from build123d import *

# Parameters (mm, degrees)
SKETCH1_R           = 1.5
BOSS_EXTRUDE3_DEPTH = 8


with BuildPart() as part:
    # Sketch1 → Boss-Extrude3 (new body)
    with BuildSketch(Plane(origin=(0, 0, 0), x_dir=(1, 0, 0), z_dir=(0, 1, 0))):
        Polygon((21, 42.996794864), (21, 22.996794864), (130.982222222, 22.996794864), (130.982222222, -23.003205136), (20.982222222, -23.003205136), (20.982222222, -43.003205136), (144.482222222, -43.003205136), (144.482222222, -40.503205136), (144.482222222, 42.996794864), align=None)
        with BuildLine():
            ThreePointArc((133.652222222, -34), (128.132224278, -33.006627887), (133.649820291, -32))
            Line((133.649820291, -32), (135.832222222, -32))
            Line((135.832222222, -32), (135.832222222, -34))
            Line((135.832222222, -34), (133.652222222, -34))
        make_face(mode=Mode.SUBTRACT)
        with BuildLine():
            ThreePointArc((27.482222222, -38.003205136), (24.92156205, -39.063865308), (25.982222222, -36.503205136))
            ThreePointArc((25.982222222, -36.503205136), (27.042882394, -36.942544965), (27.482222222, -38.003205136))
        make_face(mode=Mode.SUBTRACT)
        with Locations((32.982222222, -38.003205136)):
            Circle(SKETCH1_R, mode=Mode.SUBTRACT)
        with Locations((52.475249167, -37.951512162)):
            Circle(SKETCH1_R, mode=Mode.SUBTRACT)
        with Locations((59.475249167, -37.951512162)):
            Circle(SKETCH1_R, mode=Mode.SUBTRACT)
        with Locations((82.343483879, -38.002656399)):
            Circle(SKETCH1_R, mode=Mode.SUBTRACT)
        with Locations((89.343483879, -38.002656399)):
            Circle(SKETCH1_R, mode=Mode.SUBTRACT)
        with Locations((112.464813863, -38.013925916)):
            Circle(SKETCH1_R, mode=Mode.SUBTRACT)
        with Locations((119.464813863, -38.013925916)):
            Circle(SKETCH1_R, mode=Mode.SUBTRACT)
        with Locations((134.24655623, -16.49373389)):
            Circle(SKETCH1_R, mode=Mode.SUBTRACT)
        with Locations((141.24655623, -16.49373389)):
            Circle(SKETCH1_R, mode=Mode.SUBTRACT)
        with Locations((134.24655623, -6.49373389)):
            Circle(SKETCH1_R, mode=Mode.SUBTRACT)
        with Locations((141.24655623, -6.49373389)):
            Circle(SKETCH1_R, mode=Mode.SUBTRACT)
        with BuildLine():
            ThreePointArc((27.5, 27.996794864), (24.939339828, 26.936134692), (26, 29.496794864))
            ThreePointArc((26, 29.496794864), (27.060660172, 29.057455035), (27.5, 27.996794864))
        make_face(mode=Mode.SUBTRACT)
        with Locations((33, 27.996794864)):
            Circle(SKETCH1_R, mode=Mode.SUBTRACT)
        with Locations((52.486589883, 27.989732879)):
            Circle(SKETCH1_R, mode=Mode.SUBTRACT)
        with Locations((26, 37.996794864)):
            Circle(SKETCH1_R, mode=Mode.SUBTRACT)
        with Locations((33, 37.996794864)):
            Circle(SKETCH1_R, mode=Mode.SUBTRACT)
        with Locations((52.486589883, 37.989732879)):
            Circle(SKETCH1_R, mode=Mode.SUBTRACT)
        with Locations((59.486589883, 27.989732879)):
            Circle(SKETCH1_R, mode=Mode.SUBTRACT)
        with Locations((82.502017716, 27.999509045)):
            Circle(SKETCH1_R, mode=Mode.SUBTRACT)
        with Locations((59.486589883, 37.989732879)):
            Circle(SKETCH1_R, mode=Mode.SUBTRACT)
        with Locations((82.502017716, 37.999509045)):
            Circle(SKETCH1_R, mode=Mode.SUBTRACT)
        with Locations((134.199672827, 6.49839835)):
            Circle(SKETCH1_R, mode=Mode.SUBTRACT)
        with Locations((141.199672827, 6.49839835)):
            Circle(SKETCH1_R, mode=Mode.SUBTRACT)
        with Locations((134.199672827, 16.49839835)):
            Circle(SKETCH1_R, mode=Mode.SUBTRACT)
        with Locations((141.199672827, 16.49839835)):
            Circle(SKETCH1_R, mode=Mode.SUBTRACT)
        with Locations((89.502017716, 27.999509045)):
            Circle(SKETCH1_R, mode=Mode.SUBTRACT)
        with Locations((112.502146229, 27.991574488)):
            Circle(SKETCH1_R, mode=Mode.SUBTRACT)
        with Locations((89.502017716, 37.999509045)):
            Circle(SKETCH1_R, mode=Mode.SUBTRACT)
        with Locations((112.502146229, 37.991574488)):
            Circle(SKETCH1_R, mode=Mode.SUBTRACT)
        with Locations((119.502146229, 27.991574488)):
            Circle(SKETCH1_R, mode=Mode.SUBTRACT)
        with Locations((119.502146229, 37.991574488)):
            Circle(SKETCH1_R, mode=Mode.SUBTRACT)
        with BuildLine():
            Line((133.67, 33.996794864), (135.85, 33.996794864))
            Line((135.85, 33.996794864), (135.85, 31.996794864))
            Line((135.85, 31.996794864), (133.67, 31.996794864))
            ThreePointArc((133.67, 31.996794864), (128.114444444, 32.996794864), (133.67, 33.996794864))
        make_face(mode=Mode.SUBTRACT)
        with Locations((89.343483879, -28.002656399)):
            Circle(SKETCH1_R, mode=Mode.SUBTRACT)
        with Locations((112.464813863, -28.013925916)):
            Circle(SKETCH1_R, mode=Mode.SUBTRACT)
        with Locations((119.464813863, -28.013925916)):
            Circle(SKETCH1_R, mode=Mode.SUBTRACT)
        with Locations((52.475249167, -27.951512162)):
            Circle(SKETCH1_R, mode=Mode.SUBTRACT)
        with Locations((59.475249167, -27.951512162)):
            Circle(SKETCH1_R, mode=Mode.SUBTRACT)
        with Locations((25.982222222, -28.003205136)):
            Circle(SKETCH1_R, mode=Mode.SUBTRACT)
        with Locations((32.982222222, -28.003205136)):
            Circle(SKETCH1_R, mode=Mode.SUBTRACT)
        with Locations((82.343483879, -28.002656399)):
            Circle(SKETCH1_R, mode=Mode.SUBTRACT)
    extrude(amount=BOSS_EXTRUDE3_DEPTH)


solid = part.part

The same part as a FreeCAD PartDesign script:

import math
import FreeCAD as App
import Part
import Sketcher

V = App.Vector
Q = App.Units.Quantity


def add_polygon(sketch, points):
    """Adds a closed chain of lines whose ends are joined by coincident constraints."""
    first, n = sketch.GeometryCount, len(points)
    for a, b in zip(points, points[1:] + points[:1]):
        sketch.addGeometry(Part.LineSegment(App.Vector(*a, 0), App.Vector(*b, 0)), False)
    for i in range(n):
        sketch.addConstraint(Sketcher.Constraint("Coincident", first + i, 2, first + (i + 1) % n, 1))

doc = App.newDocument("Part")
body = doc.addObject("PartDesign::Body", "Body")

sketch1 = doc.addObject("Sketcher::SketchObject", "Sketch")
body.addObject(sketch1)
sketch1.AttachmentSupport = (doc.XZ_Plane, [""])
sketch1.MapMode = "FlatFace"
add_polygon(sketch1, [(21, -42.996795), (21, -22.996795), (130.982222, -22.996795), (130.982222, 23.003205), (20.982222, 23.003205), (20.982222, 43.003205), (144.482222, 43.003205), (144.482222, -42.996795)])
sketch1.addGeometry(Part.ArcOfCircle(Part.Circle(V(25.982222, 38.003205, 0), V(0, 0, 1), 1.5), math.radians(-90), math.radians(0)), False)
sketch1.addGeometry(Part.ArcOfCircle(Part.Circle(V(25.982222, 38.003205, 0), V(0, 0, 1), 1.5), math.radians(0), math.radians(270)), False)
sketch1.addGeometry(Part.Circle(V(32.982222, 38.003205, 0), V(0, 0, 1), 1.5), False)
sketch1.addGeometry(Part.Circle(V(52.475249, 37.951512, 0), V(0, 0, 1), 1.5), False)
sketch1.addGeometry(Part.Circle(V(25.982222, 28.003205, 0), V(0, 0, 1), 1.5), False)
sketch1.addGeometry(Part.Circle(V(32.982222, 28.003205, 0), V(0, 0, 1), 1.5), False)
sketch1.addGeometry(Part.Circle(V(52.475249, 27.951512, 0), V(0, 0, 1), 1.5), False)
sketch1.addGeometry(Part.Circle(V(59.475249, 37.951512, 0), V(0, 0, 1), 1.5), False)
sketch1.addGeometry(Part.Circle(V(82.343484, 38.002656, 0), V(0, 0, 1), 1.5), False)
sketch1.addGeometry(Part.Circle(V(59.475249, 27.951512, 0), V(0, 0, 1), 1.5), False)
sketch1.addGeometry(Part.Circle(V(82.343484, 28.002656, 0), V(0, 0, 1), 1.5), False)
sketch1.addGeometry(Part.Circle(V(89.343484, 38.002656, 0), V(0, 0, 1), 1.5), False)
sketch1.addGeometry(Part.Circle(V(112.464814, 38.013926, 0), V(0, 0, 1), 1.5), False)
sketch1.addGeometry(Part.Circle(V(89.343484, 28.002656, 0), V(0, 0, 1), 1.5), False)
sketch1.addGeometry(Part.Circle(V(112.464814, 28.013926, 0), V(0, 0, 1), 1.5), False)
sketch1.addGeometry(Part.Circle(V(119.464814, 38.013926, 0), V(0, 0, 1), 1.5), False)
sketch1.addGeometry(Part.LineSegment(V(135.832222, 34, 0), V(133.652222, 34, 0)), False)
sketch1.addGeometry(Part.ArcOfCircle(Part.Circle(V(130.982222, 33.003205, 0), V(0, 0, 1), 2.85), math.radians(20.472183), math.radians(339.390197)), False)
sketch1.addGeometry(Part.LineSegment(V(133.64982, 32, 0), V(135.832222, 32, 0)), False)
sketch1.addGeometry(Part.LineSegment(V(135.832222, 32, 0), V(135.832222, 34, 0)), False)
sketch1.addGeometry(Part.Circle(V(119.464814, 28.013926, 0), V(0, 0, 1), 1.5), False)
sketch1.addGeometry(Part.Circle(V(134.246556, 16.493734, 0), V(0, 0, 1), 1.5), False)
sketch1.addGeometry(Part.Circle(V(141.246556, 16.493734, 0), V(0, 0, 1), 1.5), False)
sketch1.addGeometry(Part.Circle(V(134.246556, 6.493734, 0), V(0, 0, 1), 1.5), False)
sketch1.addGeometry(Part.Circle(V(141.246556, 6.493734, 0), V(0, 0, 1), 1.5), False)
sketch1.addGeometry(Part.ArcOfCircle(Part.Circle(V(26, -27.996795, 0), V(0, 0, 1), 1.5), math.radians(-90), math.radians(0)), False)
sketch1.addGeometry(Part.ArcOfCircle(Part.Circle(V(26, -27.996795, 0), V(0, 0, 1), 1.5), math.radians(0), math.radians(270)), False)
sketch1.addGeometry(Part.Circle(V(33, -27.996795, 0), V(0, 0, 1), 1.5), False)
sketch1.addGeometry(Part.Circle(V(52.48659, -27.989733, 0), V(0, 0, 1), 1.5), False)
sketch1.addGeometry(Part.Circle(V(26, -37.996795, 0), V(0, 0, 1), 1.5), False)
sketch1.addGeometry(Part.Circle(V(33, -37.996795, 0), V(0, 0, 1), 1.5), False)
sketch1.addGeometry(Part.Circle(V(52.48659, -37.989733, 0), V(0, 0, 1), 1.5), False)
sketch1.addGeometry(Part.Circle(V(59.48659, -27.989733, 0), V(0, 0, 1), 1.5), False)
sketch1.addGeometry(Part.Circle(V(82.502018, -27.999509, 0), V(0, 0, 1), 1.5), False)
sketch1.addGeometry(Part.Circle(V(59.48659, -37.989733, 0), V(0, 0, 1), 1.5), False)
sketch1.addGeometry(Part.Circle(V(82.502018, -37.999509, 0), V(0, 0, 1), 1.5), False)
sketch1.addGeometry(Part.Circle(V(134.199673, -6.498398, 0), V(0, 0, 1), 1.5), False)
sketch1.addGeometry(Part.Circle(V(141.199673, -6.498398, 0), V(0, 0, 1), 1.5), False)
sketch1.addGeometry(Part.Circle(V(134.199673, -16.498398, 0), V(0, 0, 1), 1.5), False)
sketch1.addGeometry(Part.Circle(V(141.199673, -16.498398, 0), V(0, 0, 1), 1.5), False)
sketch1.addGeometry(Part.Circle(V(89.502018, -27.999509, 0), V(0, 0, 1), 1.5), False)
sketch1.addGeometry(Part.Circle(V(112.502146, -27.991574, 0), V(0, 0, 1), 1.5), False)
sketch1.addGeometry(Part.Circle(V(89.502018, -37.999509, 0), V(0, 0, 1), 1.5), False)
sketch1.addGeometry(Part.Circle(V(112.502146, -37.991574, 0), V(0, 0, 1), 1.5), False)
sketch1.addGeometry(Part.Circle(V(119.502146, -27.991574, 0), V(0, 0, 1), 1.5), False)
sketch1.addGeometry(Part.Circle(V(119.502146, -37.991574, 0), V(0, 0, 1), 1.5), False)
sketch1.addGeometry(Part.ArcOfCircle(Part.Circle(V(130.982222, -32.996795, 0), V(0, 0, 1), 2.867778), math.radians(20.407947), math.radians(339.592053)), False)
sketch1.addGeometry(Part.LineSegment(V(133.67, -33.996795, 0), V(135.85, -33.996795, 0)), False)
sketch1.addGeometry(Part.LineSegment(V(135.85, -33.996795, 0), V(135.85, -31.996795, 0)), False)
sketch1.addGeometry(Part.LineSegment(V(135.85, -31.996795, 0), V(133.67, -31.996795, 0)), False)
sketch1.addConstraint([
    Sketcher.Constraint("Tangent", 8, 1, 9, 2),
    Sketcher.Constraint("Coincident", 9, 1, 8, 2),
    Sketcher.Constraint("Coincident", 24, 2, 25, 1),
    Sketcher.Constraint("Coincident", 25, 2, 26, 1),
    Sketcher.Constraint("Coincident", 26, 2, 27, 1),
    Sketcher.Constraint("Coincident", 27, 2, 24, 1),
    Sketcher.Constraint("Tangent", 33, 1, 34, 2),
    Sketcher.Constraint("Coincident", 34, 1, 33, 2),
    Sketcher.Constraint("Coincident", 54, 2, 55, 1),
    Sketcher.Constraint("Coincident", 55, 2, 56, 1),
    Sketcher.Constraint("Coincident", 56, 2, 57, 1),
    Sketcher.Constraint("Coincident", 57, 2, 54, 1),
    Sketcher.Constraint("Vertical", 0),
    Sketcher.Constraint("Horizontal", 1),
    Sketcher.Constraint("Vertical", 2),
    Sketcher.Constraint("Horizontal", 3),
    Sketcher.Constraint("Vertical", 4),
    Sketcher.Constraint("Horizontal", 5),
    Sketcher.Constraint("Vertical", 6),
    Sketcher.Constraint("Horizontal", 7),
    Sketcher.Constraint("Horizontal", 24),
    Sketcher.Constraint("Horizontal", 26),
    Sketcher.Constraint("Vertical", 27),
    Sketcher.Constraint("Horizontal", 55),
    Sketcher.Constraint("Vertical", 56),
    Sketcher.Constraint("Horizontal", 57),
    Sketcher.Constraint("Equal", 9, 10),
    Sketcher.Constraint("Equal", 10, 11),
    Sketcher.Constraint("Equal", 11, 12),
    Sketcher.Constraint("Equal", 12, 13),
    Sketcher.Constraint("Equal", 13, 14),
    Sketcher.Constraint("Equal", 14, 15),
    Sketcher.Constraint("Equal", 15, 16),
    Sketcher.Constraint("Equal", 16, 17),
    Sketcher.Constraint("Equal", 17, 18),
    Sketcher.Constraint("Equal", 18, 19),
    Sketcher.Constraint("Equal", 19, 20),
    Sketcher.Constraint("Equal", 20, 21),
    Sketcher.Constraint("Equal", 21, 22),
    Sketcher.Constraint("Equal", 22, 23),
    Sketcher.Constraint("Equal", 23, 28),
    Sketcher.Constraint("Equal", 28, 29),
    Sketcher.Constraint("Equal", 29, 30),
    Sketcher.Constraint("Equal", 30, 31),
    Sketcher.Constraint("Equal", 31, 32),
    Sketcher.Constraint("Equal", 32, 33),
    Sketcher.Constraint("Equal", 34, 35),
    Sketcher.Constraint("Equal", 35, 36),
    Sketcher.Constraint("Equal", 36, 37),
    Sketcher.Constraint("Equal", 37, 38),
    Sketcher.Constraint("Equal", 38, 39),
    Sketcher.Constraint("Equal", 39, 40),
    Sketcher.Constraint("Equal", 40, 41),
    Sketcher.Constraint("Equal", 41, 42),
    Sketcher.Constraint("Equal", 42, 43),
    Sketcher.Constraint("Equal", 43, 44),
    Sketcher.Constraint("Equal", 44, 45),
    Sketcher.Constraint("Equal", 45, 46),
    Sketcher.Constraint("Equal", 46, 47),
    Sketcher.Constraint("Equal", 47, 48),
    Sketcher.Constraint("Equal", 48, 49),
    Sketcher.Constraint("Equal", 49, 50),
    Sketcher.Constraint("Equal", 50, 51),
    Sketcher.Constraint("Equal", 51, 52),
    Sketcher.Constraint("Equal", 52, 53),
    Sketcher.Constraint("Horizontal", 9, 3, 10, 3),
    Sketcher.Constraint("Horizontal", 12, 3, 13, 3),
    Sketcher.Constraint("Horizontal", 11, 3, 15, 3),
    Sketcher.Constraint("Horizontal", 14, 3, 17, 3),
    Sketcher.Constraint("Horizontal", 16, 3, 19, 3),
    Sketcher.Constraint("Horizontal", 18, 3, 21, 3),
    Sketcher.Constraint("Horizontal", 20, 3, 23, 3),
    Sketcher.Constraint("Horizontal", 22, 3, 28, 3),
    Sketcher.Constraint("Horizontal", 29, 3, 30, 3),
    Sketcher.Constraint("Horizontal", 31, 3, 32, 3),
    Sketcher.Constraint("Horizontal", 34, 3, 35, 3),
    Sketcher.Constraint("Horizontal", 37, 3, 38, 3),
    Sketcher.Constraint("Horizontal", 36, 3, 40, 3),
    Sketcher.Constraint("Horizontal", 39, 3, 42, 3),
    Sketcher.Constraint("Horizontal", 44, 3, 45, 3),
    Sketcher.Constraint("Horizontal", 46, 3, 47, 3),
    Sketcher.Constraint("Horizontal", 41, 3, 48, 3),
    Sketcher.Constraint("Horizontal", 43, 3, 50, 3),
    Sketcher.Constraint("Horizontal", 49, 3, 52, 3),
    Sketcher.Constraint("Horizontal", 51, 3, 53, 3),
    Sketcher.Constraint("Horizontal", 10, 3, 9, 1),
    Sketcher.Constraint("Horizontal", 35, 3, 34, 1),
    Sketcher.Constraint("Vertical", 9, 3, 12, 3),
    Sketcher.Constraint("Vertical", 10, 3, 13, 3),
    Sketcher.Constraint("Vertical", 11, 3, 14, 3),
    Sketcher.Constraint("Vertical", 15, 3, 17, 3),
    Sketcher.Constraint("Vertical", 16, 3, 18, 3),
    Sketcher.Constraint("Vertical", 19, 3, 21, 3),
    Sketcher.Constraint("Vertical", 20, 3, 22, 3),
    Sketcher.Constraint("Vertical", 23, 3, 28, 3),
    Sketcher.Constraint("Vertical", 29, 3, 31, 3),
    Sketcher.Constraint("Vertical", 30, 3, 32, 3),
    Sketcher.Constraint("Vertical", 34, 3, 37, 3),
    Sketcher.Constraint("Vertical", 35, 3, 38, 3),
    Sketcher.Constraint("Vertical", 36, 3, 39, 3),
    Sketcher.Constraint("Vertical", 40, 3, 42, 3),
    Sketcher.Constraint("Vertical", 41, 3, 43, 3),
    Sketcher.Constraint("Vertical", 44, 3, 46, 3),
    Sketcher.Constraint("Vertical", 45, 3, 47, 3),
    Sketcher.Constraint("Vertical", 48, 3, 50, 3),
    Sketcher.Constraint("Vertical", 49, 3, 51, 3),
    Sketcher.Constraint("Vertical", 52, 3, 53, 3),
    Sketcher.Constraint("Vertical", 25, 3, 54, 3),
    Sketcher.Constraint("Vertical", 54, 3, 1, 2),
    Sketcher.Constraint("Vertical", 12, 3, 8, 1),
    Sketcher.Constraint("Vertical", 37, 3, 33, 1),
    Sketcher.Constraint("Vertical", 54, 2, 57, 2),
    Sketcher.Constraint("Equal", 24, 55),
    Sketcher.Constraint("Equal", 0, 4),
    Sketcher.Constraint("Equal", 27, 56),
    Sketcher.Constraint("Diameter", 10, Q("3 mm")),
    Sketcher.Constraint("DistanceX", 3, 2, 3, 1, Q("110 mm")),
    Sketcher.Constraint("DistanceY", 0, 1, 0, 2, Q("20 mm")),
    Sketcher.Constraint("DistanceY", 2, 1, 2, 2, Q("46 mm")),
    Sketcher.Constraint("DistanceY", 27, 1, 27, 2, Q("2 mm")),
    Sketcher.Constraint("Radius", 25, Q("2.85 mm")),
    Sketcher.Constraint("DistanceX", 5, 1, 5, 2, Q("123.5 mm")),
    Sketcher.Constraint("DistanceX", -1, 1, 33, 3, Q("26 mm")),
    Sketcher.Constraint("DistanceX", -1, 1, 35, 3, Q("33 mm")),
    Sketcher.Constraint("DistanceX", -1, 1, 0, 2, Q("21 mm")),
    Sketcher.Constraint("DistanceY", -1, 1, 24, 2, Q("34 mm")),
    Sketcher.Constraint("DistanceX", 24, 2, 24, 1, Q("2.18 mm")),
    Sketcher.Constraint("DistanceX", -1, 1, 54, 2, Q("133.67 mm")),
    Sketcher.Constraint("DistanceX", 26, 1, 26, 2, Q("2.182402 mm")),
    Sketcher.Constraint("Radius", 54, Q("2.867778 mm")),
    Sketcher.Constraint("DistanceY", 44, 3, -1, 1, Q("6.498398 mm")),
    Sketcher.Constraint("DistanceY", 46, 3, -1, 1, Q("16.498398 mm")),
    Sketcher.Constraint("DistanceX", -1, 1, 11, 3, Q("52.475249 mm")),
    Sketcher.Constraint("DistanceX", -1, 1, 15, 3, Q("59.475249 mm")),
    Sketcher.Constraint("DistanceX", -1, 1, 36, 3, Q("52.48659 mm")),
    Sketcher.Constraint("DistanceX", -1, 1, 40, 3, Q("59.48659 mm")),
    Sketcher.Constraint("DistanceY", 41, 3, -1, 1, Q("27.999509 mm")),
    Sketcher.Constraint("DistanceY", 43, 3, -1, 1, Q("37.999509 mm")),
    Sketcher.Constraint("DistanceX", -1, 1, 8, 3, Q("25.982222 mm")),
    Sketcher.Constraint("DistanceY", -1, 1, 8, 3, Q("38.003205 mm")),
    Sketcher.Constraint("DistanceX", -1, 1, 10, 3, Q("32.982222 mm")),
    Sketcher.Constraint("DistanceY", -1, 1, 11, 3, Q("37.951512 mm")),
    Sketcher.Constraint("DistanceY", -1, 1, 12, 3, Q("28.003205 mm")),
    Sketcher.Constraint("DistanceY", -1, 1, 14, 3, Q("27.951512 mm")),
    Sketcher.Constraint("DistanceX", -1, 1, 16, 3, Q("82.343484 mm")),
    Sketcher.Constraint("DistanceY", -1, 1, 16, 3, Q("38.002656 mm")),
    Sketcher.Constraint("DistanceY", -1, 1, 18, 3, Q("28.002656 mm")),
    Sketcher.Constraint("DistanceX", -1, 1, 19, 3, Q("89.343484 mm")),
    Sketcher.Constraint("DistanceX", -1, 1, 20, 3, Q("112.464814 mm")),
    Sketcher.Constraint("DistanceY", -1, 1, 20, 3, Q("38.013926 mm")),
    Sketcher.Constraint("DistanceY", -1, 1, 22, 3, Q("28.013926 mm")),
    Sketcher.Constraint("DistanceX", -1, 1, 23, 3, Q("119.464814 mm")),
    Sketcher.Constraint("DistanceX", -1, 1, 29, 3, Q("134.246556 mm")),
    Sketcher.Constraint("DistanceY", -1, 1, 29, 3, Q("16.493734 mm")),
    Sketcher.Constraint("DistanceX", -1, 1, 30, 3, Q("141.246556 mm")),
    Sketcher.Constraint("DistanceY", -1, 1, 31, 3, Q("6.493734 mm")),
    Sketcher.Constraint("DistanceY", 33, 3, -1, 1, Q("27.996795 mm")),
    Sketcher.Constraint("DistanceY", 36, 3, -1, 1, Q("27.989733 mm")),
    Sketcher.Constraint("DistanceY", 37, 3, -1, 1, Q("37.996795 mm")),
    Sketcher.Constraint("DistanceY", 39, 3, -1, 1, Q("37.989733 mm")),
    Sketcher.Constraint("DistanceX", -1, 1, 41, 3, Q("82.502018 mm")),
    Sketcher.Constraint("DistanceX", -1, 1, 44, 3, Q("134.199673 mm")),
    Sketcher.Constraint("DistanceX", -1, 1, 45, 3, Q("141.199673 mm")),
    Sketcher.Constraint("DistanceX", -1, 1, 48, 3, Q("89.502018 mm")),
    Sketcher.Constraint("DistanceX", -1, 1, 49, 3, Q("112.502146 mm")),
    Sketcher.Constraint("DistanceY", 49, 3, -1, 1, Q("27.991574 mm")),
    Sketcher.Constraint("DistanceY", 51, 3, -1, 1, Q("37.991574 mm")),
    Sketcher.Constraint("DistanceX", -1, 1, 52, 3, Q("119.502146 mm")),
    Sketcher.Constraint("DistanceY", 54, 3, -1, 1, Q("32.996795 mm")),
    Sketcher.Constraint("DistanceY", 0, 2, -1, 1, Q("22.996795 mm")),
])
pad1 = doc.addObject("PartDesign::Pad", "Pad")
body.addObject(pad1)
pad1.Profile = sketch1
pad1.Length = 8
pad1.Reversed = True

doc.recompute()
